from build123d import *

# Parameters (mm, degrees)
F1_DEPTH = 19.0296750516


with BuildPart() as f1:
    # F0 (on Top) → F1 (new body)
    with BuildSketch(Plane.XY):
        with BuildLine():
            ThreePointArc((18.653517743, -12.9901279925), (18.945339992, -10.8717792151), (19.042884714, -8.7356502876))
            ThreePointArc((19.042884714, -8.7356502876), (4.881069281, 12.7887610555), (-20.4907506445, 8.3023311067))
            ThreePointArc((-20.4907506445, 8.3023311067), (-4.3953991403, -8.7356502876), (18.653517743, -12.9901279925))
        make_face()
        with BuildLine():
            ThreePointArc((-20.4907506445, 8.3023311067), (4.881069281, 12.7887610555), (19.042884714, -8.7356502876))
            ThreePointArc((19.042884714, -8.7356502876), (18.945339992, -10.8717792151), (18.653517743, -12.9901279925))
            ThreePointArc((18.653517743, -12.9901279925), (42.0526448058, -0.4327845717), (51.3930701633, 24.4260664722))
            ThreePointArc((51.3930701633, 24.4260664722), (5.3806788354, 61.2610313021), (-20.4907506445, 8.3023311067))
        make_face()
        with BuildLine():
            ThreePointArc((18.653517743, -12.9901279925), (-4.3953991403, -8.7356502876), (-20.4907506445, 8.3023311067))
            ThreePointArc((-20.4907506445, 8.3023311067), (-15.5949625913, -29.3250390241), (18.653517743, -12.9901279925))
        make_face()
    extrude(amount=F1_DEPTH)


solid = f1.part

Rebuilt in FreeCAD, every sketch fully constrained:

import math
import FreeCAD as App
import Part
import Sketcher

doc = App.newDocument("Part")
body = doc.addObject("PartDesign::Body", "Body")

sketch1 = body.newObject("Sketcher::SketchObject", "Sketch")
sketch1.AttachmentSupport = (doc.getObject("XY_Plane"), [""])
sketch1.MapMode = "FlatFace"
sketch1.addGeometry([
    Part.ArcOfCircle(Part.Circle(App.Vector(13.642861, 24.426066, 0), App.Vector(0, 0, 1), 37.750209), math.radians(-82.372513), math.radians(0)),
    Part.ArcOfCircle(Part.Circle(App.Vector(13.642861, 24.426066, 0), App.Vector(0, 0, 1), 37.750209), math.radians(0), math.radians(205.284702)),
    Part.ArcOfCircle(Part.Circle(App.Vector(-4.395399, -8.73565, 0), App.Vector(0, 0, 1), 23.438284), math.radians(133.370398), math.radians(349.54179)),
], False)
sketch1.addConstraint([
    Sketcher.Constraint("Tangent", 0, 2, 1, 1),
    Sketcher.Constraint("Coincident", 1, 2, 2, 1),
    Sketcher.Constraint("Coincident", 2, 2, 0, 1),
    Sketcher.Constraint("Equal", 0, 1),
    Sketcher.Constraint("Horizontal", 1, 3, 0, 2),
    Sketcher.Constraint("Radius", 0, 37.750209),
    Sketcher.Constraint("Radius", 2, 23.438284),
    Sketcher.Constraint("DistanceX", 2, 3, -1, 1, 4.395399),
    Sketcher.Constraint("DistanceX", -1, 1, 0, 3, 13.642861),
    Sketcher.Constraint("DistanceY", 2, 3, -1, 1, 8.73565),
    Sketcher.Constraint("DistanceX", 1, 2, -1, 1, 20.490751),
])
pad1 = body.newObject("PartDesign::Pad", "Pad")
pad1.Profile = sketch1
pad1.Length = 19.029675

doc.recompute()
